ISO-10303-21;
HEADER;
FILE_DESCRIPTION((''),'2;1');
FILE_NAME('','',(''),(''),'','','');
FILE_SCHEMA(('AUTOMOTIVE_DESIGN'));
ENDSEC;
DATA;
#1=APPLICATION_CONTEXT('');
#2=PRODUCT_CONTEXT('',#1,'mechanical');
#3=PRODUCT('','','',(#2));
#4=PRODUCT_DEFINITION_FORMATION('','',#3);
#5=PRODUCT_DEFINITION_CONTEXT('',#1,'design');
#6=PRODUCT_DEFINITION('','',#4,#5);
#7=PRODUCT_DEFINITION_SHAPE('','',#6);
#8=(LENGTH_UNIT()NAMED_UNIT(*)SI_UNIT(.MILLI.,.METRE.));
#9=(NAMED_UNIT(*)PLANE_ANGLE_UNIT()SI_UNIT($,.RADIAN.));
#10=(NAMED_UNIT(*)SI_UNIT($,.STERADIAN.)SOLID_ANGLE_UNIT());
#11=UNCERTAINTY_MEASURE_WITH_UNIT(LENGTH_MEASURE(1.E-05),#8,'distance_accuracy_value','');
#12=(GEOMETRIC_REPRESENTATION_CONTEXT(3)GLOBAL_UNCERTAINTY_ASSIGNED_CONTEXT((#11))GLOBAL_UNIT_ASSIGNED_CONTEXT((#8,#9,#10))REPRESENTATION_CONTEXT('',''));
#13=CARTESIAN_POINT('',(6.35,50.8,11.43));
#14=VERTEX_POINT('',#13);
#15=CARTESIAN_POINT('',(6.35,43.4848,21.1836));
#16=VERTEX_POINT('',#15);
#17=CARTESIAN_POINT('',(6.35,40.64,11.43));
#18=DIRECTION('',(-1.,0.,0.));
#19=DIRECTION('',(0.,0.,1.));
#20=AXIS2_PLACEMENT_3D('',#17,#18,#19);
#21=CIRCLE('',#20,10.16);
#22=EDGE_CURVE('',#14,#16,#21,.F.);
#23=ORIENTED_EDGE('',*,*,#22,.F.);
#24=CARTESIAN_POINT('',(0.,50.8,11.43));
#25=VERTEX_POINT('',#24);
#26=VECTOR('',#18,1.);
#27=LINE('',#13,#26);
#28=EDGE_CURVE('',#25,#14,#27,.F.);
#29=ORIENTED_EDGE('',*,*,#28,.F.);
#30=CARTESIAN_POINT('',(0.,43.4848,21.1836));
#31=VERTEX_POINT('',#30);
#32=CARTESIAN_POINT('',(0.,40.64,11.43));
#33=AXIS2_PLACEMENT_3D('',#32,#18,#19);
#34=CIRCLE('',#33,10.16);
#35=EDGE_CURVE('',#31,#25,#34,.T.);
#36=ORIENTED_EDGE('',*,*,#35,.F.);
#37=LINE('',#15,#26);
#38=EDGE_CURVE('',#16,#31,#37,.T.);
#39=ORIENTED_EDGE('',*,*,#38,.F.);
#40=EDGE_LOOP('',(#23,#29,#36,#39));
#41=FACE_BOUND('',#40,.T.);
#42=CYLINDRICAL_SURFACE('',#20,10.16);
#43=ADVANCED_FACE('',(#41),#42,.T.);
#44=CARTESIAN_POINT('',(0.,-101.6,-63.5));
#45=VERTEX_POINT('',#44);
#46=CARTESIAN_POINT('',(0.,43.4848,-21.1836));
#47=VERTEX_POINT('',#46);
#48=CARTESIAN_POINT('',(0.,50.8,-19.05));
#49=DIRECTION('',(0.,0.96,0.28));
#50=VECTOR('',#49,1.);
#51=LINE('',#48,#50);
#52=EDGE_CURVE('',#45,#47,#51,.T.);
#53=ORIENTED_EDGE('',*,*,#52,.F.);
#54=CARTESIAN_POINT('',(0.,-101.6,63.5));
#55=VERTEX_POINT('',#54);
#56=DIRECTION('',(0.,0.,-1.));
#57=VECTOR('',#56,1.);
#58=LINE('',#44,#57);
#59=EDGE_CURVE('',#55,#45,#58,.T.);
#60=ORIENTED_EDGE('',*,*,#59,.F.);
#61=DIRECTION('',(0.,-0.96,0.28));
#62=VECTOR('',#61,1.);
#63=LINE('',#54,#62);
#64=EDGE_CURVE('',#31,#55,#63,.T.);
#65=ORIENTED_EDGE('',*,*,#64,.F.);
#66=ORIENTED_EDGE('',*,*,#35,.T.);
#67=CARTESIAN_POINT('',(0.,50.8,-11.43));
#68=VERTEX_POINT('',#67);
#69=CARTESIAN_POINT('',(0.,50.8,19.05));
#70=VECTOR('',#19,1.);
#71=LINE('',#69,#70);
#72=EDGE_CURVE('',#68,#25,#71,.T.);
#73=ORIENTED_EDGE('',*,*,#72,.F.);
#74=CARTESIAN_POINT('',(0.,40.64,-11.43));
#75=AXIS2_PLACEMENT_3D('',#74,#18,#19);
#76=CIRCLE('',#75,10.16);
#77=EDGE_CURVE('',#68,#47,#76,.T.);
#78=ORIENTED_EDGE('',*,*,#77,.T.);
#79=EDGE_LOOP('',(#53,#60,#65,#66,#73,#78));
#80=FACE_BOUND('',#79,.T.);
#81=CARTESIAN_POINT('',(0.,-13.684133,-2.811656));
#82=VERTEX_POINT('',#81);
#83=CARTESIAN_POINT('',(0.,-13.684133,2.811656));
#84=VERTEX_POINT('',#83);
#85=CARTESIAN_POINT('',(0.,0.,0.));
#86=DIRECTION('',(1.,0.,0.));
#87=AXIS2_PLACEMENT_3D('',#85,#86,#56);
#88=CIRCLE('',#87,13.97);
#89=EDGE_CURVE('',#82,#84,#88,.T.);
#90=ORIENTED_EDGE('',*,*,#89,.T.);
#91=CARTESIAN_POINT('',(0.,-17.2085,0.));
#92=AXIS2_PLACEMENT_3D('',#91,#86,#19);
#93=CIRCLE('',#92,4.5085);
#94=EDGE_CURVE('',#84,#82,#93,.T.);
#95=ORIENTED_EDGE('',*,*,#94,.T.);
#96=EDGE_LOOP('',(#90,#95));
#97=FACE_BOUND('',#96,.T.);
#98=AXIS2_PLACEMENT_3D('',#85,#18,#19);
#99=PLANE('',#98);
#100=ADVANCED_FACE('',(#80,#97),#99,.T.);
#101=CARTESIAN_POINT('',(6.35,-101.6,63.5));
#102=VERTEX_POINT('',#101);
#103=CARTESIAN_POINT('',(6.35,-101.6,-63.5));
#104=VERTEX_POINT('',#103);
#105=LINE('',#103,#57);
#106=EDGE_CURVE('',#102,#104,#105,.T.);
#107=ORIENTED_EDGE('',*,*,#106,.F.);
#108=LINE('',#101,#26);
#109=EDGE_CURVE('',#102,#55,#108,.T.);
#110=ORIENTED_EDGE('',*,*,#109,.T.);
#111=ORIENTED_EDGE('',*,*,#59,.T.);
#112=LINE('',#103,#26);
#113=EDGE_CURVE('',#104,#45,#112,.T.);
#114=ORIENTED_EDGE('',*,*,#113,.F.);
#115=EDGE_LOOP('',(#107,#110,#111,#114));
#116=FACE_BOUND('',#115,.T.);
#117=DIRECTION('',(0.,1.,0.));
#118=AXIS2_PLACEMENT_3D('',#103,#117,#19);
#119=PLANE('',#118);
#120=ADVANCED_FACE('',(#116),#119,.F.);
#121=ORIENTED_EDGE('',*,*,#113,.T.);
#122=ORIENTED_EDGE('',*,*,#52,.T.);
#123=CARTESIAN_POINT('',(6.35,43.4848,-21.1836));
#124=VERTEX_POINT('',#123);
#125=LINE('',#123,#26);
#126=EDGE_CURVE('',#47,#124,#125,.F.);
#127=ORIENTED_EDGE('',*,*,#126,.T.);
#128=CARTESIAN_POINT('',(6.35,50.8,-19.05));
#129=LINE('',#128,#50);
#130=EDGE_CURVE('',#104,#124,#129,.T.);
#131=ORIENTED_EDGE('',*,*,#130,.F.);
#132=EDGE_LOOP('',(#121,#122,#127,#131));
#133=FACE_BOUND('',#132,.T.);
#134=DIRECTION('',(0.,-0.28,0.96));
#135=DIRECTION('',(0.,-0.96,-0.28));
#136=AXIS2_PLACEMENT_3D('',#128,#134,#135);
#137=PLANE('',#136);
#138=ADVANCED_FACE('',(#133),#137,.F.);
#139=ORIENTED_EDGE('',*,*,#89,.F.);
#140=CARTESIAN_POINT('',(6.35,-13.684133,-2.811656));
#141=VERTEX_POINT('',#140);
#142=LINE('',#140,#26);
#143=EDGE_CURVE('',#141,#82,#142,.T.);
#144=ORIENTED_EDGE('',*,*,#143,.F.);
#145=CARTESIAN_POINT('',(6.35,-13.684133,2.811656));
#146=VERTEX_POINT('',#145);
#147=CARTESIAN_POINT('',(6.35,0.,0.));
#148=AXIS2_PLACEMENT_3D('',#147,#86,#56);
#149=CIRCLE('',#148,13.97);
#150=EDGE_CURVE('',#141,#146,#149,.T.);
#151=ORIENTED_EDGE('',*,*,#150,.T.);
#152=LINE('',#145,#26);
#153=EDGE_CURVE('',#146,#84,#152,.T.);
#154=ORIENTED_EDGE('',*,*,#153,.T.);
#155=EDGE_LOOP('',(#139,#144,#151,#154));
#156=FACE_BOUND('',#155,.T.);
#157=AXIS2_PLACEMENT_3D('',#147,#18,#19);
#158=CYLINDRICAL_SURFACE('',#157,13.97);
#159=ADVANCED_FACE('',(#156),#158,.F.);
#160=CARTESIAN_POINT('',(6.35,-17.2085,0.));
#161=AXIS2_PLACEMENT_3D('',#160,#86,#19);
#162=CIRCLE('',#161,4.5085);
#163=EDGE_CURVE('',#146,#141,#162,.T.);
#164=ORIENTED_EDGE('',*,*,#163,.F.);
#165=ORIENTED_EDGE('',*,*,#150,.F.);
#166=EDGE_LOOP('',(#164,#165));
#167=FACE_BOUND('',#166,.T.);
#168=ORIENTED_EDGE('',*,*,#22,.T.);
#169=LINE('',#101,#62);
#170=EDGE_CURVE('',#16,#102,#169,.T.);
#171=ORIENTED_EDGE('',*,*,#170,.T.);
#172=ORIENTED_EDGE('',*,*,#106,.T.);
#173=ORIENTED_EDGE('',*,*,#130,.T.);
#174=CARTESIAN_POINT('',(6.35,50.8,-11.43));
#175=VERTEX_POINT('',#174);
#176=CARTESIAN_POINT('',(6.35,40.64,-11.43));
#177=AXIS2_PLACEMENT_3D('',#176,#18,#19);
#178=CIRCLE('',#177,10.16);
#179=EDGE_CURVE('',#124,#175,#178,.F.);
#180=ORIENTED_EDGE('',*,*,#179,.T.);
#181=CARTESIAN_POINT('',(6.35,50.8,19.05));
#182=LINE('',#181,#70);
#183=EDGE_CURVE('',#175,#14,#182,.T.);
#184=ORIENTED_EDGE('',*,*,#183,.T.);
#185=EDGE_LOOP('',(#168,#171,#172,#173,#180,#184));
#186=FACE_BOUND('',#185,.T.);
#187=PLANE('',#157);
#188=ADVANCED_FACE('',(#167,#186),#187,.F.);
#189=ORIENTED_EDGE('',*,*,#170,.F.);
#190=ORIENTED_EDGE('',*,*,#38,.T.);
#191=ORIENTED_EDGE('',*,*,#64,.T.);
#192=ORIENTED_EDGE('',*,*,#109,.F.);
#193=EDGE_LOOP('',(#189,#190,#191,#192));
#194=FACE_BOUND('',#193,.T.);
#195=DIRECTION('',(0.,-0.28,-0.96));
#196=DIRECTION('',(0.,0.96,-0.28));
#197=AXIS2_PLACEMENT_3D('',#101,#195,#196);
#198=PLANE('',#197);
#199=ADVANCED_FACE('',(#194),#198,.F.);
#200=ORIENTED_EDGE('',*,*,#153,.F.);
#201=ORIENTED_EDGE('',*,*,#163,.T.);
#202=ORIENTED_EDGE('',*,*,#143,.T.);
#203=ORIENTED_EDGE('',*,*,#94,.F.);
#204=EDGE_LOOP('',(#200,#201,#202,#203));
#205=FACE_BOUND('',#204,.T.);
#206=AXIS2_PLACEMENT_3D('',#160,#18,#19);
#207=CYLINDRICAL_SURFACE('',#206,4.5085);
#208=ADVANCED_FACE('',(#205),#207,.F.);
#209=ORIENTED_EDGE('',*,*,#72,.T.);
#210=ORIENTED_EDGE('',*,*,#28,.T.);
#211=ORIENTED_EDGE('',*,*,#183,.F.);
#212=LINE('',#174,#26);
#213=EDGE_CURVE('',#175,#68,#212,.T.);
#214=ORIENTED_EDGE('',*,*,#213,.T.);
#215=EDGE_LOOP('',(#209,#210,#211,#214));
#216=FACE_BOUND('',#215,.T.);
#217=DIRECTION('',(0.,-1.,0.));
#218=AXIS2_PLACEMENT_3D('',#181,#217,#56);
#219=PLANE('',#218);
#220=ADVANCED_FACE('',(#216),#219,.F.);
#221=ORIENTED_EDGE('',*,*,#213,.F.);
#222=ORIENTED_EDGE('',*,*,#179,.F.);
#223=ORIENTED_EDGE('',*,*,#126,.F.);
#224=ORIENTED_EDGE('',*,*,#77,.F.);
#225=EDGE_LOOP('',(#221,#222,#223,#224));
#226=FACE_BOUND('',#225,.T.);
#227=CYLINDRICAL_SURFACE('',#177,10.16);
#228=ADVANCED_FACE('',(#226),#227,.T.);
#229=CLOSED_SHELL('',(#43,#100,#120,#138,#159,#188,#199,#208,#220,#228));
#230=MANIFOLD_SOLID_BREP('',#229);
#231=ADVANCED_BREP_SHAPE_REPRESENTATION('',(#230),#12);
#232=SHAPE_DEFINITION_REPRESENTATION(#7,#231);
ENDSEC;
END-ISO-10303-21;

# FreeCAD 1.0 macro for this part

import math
import FreeCAD as App
import Part
import Sketcher
Q = App.Units.Quantity


def edges_at(feature, points):
    """Names of the edges that pass closest to the given points."""
    edges = feature.Shape.Edges
    near = lambda p: min(range(len(edges)), key=lambda i: edges[i].distToShape(Part.Vertex(*p))[0])
    return sorted({f"Edge{near(p) + 1}" for p in points})

doc = App.newDocument("Part")
body = doc.addObject("PartDesign::Body", "Body")

sketch1 = body.newObject("Sketcher::SketchObject", "Sketch")
sketch1.AttachmentSupport = (doc.getObject("YZ_Plane"), [""])
sketch1.MapMode = "FlatFace"
sketch1.addGeometry([
    Part.LineSegment(App.Vector(50.8, 19.1, 0), App.Vector(-101.6, 63.5, 0)),
    Part.LineSegment(App.Vector(-101.6, 63.5, 0), App.Vector(-101.6, -63.5, 0)),
    Part.LineSegment(App.Vector(-101.6, -63.5, 0), App.Vector(50.8, -19.1, 0)),
    Part.LineSegment(App.Vector(50.8, -19.1, 0), App.Vector(50.8, 19.1, 0)),
    Part.ArcOfCircle(Part.Circle(App.Vector(-17.2, 0, 0), App.Vector(0, 0, 1), 4.5), math.radians(39), math.radians(321)),
    Part.ArcOfCircle(Part.Circle(App.Vector(0, 0, 0), App.Vector(0, 0, 1), 14), math.radians(-168), math.radians(168)),
], False)
sketch1.addConstraint([
    Sketcher.Constraint("Coincident", 0, 2, 1, 1),
    Sketcher.Constraint("Coincident", 1, 2, 2, 1),
    Sketcher.Constraint("Coincident", 2, 2, 3, 1),
    Sketcher.Constraint("Coincident", 3, 2, 0, 1),
    Sketcher.Constraint("Coincident", 4, 1, 5, 2),
    Sketcher.Constraint("Coincident", 5, 1, 4, 2),
    Sketcher.Constraint("Vertical", 1),
    Sketcher.Constraint("Vertical", 3),
    Sketcher.Constraint("Coincident", 5, 3, -1, 1),
    Sketcher.Constraint("PointOnObject", 4, 3, -1),
    Sketcher.Constraint("Equal", 0, 2),
    Sketcher.Constraint("DistanceY", 1, 2, 1, 1, Q("5 in")),
    Sketcher.Constraint("Radius", 5, Q("0.55 in")),
    Sketcher.Constraint("DistanceY", 3, 1, 3, 2, Q("1.5 in")),
    Sketcher.Constraint("DistanceX", 0, 2, -1, 1, Q("4 in")),
    Sketcher.Constraint("DistanceX", -1, 1, 2, 2, Q("2 in")),
    Sketcher.Constraint("DistanceY", -1, 1, 0, 2, Q("2.5 in")),
    Sketcher.Constraint("Radius", 4, Q("0.1775 in")),
    Sketcher.Constraint("DistanceX", 4, 3, -1, 1, Q("0.6775 in")),
])
pad1 = body.newObject("PartDesign::Pad", "Pad")
pad1.Profile = sketch1
pad1.Length = Q("0.25 in")
doc.recompute()

fillet = body.newObject("PartDesign::Fillet", "Fillet")
fillet.Base = (pad1, edges_at(pad1, [(3.175, 50.8, 19.05), (3.175, 50.8, -19.05)]))
fillet.Radius = Q("0.4 in")

doc.recompute()
